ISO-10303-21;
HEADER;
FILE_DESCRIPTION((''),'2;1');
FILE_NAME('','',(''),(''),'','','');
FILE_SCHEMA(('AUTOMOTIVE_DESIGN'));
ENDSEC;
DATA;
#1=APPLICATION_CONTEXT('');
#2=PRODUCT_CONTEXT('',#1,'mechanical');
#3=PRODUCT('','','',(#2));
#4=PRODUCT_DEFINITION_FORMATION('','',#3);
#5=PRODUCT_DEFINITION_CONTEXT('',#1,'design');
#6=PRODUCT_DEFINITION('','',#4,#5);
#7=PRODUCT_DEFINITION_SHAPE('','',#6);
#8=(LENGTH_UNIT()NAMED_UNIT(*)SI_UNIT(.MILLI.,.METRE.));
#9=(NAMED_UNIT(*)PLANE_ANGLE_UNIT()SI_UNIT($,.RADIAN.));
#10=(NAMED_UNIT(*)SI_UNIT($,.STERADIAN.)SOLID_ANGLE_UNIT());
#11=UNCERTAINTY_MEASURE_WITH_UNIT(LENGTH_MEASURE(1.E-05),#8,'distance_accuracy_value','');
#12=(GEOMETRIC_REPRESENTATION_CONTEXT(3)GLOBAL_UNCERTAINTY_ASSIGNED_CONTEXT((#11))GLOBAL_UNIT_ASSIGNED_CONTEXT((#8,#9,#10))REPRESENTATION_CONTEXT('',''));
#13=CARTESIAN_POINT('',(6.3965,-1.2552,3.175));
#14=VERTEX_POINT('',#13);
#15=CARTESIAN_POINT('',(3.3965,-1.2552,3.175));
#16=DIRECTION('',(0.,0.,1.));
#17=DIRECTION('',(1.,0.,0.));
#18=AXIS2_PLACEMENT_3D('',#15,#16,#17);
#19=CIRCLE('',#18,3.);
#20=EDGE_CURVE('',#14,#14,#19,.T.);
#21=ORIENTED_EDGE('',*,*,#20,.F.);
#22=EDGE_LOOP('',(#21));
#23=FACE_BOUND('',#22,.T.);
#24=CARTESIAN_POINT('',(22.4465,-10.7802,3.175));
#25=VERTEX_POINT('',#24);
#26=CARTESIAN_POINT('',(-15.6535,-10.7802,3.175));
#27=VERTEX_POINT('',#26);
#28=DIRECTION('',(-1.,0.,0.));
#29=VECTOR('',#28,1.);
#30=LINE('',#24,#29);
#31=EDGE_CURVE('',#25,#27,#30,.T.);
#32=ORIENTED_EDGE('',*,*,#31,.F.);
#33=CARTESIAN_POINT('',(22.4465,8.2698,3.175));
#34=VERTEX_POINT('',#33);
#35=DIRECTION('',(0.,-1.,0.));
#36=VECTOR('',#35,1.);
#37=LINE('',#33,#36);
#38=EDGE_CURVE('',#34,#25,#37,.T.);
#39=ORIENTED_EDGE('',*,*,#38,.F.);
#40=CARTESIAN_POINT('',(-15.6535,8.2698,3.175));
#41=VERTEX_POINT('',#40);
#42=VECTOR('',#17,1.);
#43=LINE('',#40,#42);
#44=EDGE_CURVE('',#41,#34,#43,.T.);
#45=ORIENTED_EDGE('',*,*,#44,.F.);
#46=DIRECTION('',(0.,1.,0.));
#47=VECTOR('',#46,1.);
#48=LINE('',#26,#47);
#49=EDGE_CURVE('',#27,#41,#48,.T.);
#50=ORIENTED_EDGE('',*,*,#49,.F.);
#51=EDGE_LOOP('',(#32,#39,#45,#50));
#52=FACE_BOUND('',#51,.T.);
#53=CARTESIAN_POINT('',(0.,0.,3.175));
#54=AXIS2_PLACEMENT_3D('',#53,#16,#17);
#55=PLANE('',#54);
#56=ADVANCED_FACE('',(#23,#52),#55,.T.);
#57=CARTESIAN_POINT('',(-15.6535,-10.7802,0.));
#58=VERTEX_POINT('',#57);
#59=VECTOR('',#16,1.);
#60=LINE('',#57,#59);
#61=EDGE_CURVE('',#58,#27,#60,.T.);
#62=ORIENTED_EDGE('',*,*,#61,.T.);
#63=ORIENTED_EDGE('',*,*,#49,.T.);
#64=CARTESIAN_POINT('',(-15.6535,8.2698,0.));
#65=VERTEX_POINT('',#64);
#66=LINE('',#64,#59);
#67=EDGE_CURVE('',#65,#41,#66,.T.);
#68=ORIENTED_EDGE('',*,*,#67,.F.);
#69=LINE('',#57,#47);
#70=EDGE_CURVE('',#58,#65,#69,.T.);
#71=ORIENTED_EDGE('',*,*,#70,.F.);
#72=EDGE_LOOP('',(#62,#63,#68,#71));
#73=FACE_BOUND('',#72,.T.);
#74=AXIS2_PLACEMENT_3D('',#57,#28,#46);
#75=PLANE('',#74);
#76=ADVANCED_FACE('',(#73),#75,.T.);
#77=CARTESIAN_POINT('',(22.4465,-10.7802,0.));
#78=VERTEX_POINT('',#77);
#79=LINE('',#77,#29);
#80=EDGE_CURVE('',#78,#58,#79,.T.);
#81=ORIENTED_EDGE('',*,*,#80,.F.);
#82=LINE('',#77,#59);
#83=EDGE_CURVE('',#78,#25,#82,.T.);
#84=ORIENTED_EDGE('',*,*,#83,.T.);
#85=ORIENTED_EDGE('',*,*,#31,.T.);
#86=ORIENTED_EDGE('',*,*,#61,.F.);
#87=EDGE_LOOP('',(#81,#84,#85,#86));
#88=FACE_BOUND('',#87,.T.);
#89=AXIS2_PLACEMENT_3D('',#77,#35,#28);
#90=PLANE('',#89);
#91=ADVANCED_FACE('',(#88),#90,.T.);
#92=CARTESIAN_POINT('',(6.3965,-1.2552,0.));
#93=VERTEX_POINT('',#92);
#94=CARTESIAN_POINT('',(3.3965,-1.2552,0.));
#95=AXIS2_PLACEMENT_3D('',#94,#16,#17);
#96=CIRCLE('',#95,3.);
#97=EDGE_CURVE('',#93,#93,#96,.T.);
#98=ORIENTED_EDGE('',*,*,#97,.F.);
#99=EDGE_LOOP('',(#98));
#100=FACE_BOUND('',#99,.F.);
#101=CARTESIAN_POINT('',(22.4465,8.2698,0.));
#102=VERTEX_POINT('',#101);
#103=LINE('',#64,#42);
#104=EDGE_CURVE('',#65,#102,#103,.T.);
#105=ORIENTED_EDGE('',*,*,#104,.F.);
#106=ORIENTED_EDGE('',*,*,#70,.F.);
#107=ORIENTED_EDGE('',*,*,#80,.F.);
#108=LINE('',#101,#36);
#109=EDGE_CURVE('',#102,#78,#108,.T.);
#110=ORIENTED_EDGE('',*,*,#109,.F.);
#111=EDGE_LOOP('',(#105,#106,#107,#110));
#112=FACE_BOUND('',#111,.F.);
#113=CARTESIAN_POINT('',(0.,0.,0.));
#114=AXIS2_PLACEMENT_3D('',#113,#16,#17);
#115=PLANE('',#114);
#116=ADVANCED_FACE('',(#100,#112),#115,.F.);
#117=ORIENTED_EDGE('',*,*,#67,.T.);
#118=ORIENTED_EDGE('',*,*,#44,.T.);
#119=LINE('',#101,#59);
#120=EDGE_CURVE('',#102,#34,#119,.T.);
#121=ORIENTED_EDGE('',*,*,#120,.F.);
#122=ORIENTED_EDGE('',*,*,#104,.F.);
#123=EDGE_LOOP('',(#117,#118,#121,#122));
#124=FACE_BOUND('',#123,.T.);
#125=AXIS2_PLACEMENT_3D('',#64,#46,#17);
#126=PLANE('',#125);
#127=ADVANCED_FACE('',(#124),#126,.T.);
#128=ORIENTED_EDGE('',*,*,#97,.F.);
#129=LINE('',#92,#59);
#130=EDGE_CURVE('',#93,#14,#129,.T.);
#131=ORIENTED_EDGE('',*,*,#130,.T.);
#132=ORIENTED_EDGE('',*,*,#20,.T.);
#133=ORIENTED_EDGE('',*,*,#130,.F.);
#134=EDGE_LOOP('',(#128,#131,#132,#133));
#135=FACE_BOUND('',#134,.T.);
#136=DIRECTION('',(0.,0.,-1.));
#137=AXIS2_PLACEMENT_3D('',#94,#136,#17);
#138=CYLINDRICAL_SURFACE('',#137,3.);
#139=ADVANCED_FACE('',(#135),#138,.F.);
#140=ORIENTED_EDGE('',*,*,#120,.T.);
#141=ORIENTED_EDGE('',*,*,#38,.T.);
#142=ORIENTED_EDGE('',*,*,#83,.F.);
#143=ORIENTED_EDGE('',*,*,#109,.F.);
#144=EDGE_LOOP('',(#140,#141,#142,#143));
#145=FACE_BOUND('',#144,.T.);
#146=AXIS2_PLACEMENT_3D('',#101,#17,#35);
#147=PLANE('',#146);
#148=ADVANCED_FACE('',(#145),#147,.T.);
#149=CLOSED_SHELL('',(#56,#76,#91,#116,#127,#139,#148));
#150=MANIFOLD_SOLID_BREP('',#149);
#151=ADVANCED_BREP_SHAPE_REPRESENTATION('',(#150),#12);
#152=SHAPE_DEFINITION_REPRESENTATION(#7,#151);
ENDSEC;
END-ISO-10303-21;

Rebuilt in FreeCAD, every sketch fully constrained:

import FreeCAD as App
import Part
import Sketcher
from FreeCAD import Vector
Q = App.Units.Quantity


def add_polygon(sketch, points):
    """Adds a closed chain of lines whose ends are joined by coincident constraints."""
    first, n = sketch.GeometryCount, len(points)
    for a, b in zip(points, points[1:] + points[:1]):
        sketch.addGeometry(Part.LineSegment(App.Vector(*a, 0), App.Vector(*b, 0)), False)
    for i in range(n):
        sketch.addConstraint(Sketcher.Constraint("Coincident", first + i, 2, first + (i + 1) % n, 1))

doc = App.newDocument("Part")
body = doc.addObject("PartDesign::Body", "Body")

sketch1 = doc.addObject("Sketcher::SketchObject", "Sketch")
body.addObject(sketch1)
sketch1.AttachmentSupport = (doc.XY_Plane, [""])
sketch1.MapMode = "FlatFace"
add_polygon(sketch1, [(22, 8), (-16, 8), (-16, -11), (22, -11)])
sketch1.addConstraint([
    Sketcher.Constraint("Horizontal", 0),
    Sketcher.Constraint("Vertical", 1),
    Sketcher.Constraint("Horizontal", 2),
    Sketcher.Constraint("Vertical", 3),
    Sketcher.Constraint("DistanceX", 0, 2, 0, 1, Q("1.5 in")),
    Sketcher.Constraint("DistanceY", 1, 2, 1, 1, Q("0.75 in")),
    Sketcher.Constraint("DistanceX", 0, 2, -1, 1, Q("15.6535 mm")),
    Sketcher.Constraint("DistanceY", -1, 1, 0, 2, Q("8.2698 mm")),
])
pad1 = doc.addObject("PartDesign::Pad", "Pad")
body.addObject(pad1)
pad1.Profile = sketch1
pad1.Length = Q("0.125 in")

sketch2 = doc.addObject("Sketcher::SketchObject", "Sketch001")
body.addObject(sketch2)
sketch2.AttachmentSupport = (doc.XY_Plane, [""])
sketch2.MapMode = "FlatFace"
sketch2.addGeometry(Part.Circle(Vector(3.4, -1.3, 0), Vector(0, 0, 1), 3), False)
sketch2.addConstraint([
    Sketcher.Constraint("Diameter", 0, Q("6 mm")),
    Sketcher.Constraint("DistanceX", -1, 1, 0, 3, Q("3.3965 mm")),
    Sketcher.Constraint("DistanceY", 0, 3, -1, 1, Q("1.2552 mm")),
])
pocket1 = doc.addObject("PartDesign::Pocket", "Pocket")
body.addObject(pocket1)
pocket1.Profile = sketch2
pocket1.Length = Q("0.125 in")
pocket1.Reversed = True

doc.recompute()
